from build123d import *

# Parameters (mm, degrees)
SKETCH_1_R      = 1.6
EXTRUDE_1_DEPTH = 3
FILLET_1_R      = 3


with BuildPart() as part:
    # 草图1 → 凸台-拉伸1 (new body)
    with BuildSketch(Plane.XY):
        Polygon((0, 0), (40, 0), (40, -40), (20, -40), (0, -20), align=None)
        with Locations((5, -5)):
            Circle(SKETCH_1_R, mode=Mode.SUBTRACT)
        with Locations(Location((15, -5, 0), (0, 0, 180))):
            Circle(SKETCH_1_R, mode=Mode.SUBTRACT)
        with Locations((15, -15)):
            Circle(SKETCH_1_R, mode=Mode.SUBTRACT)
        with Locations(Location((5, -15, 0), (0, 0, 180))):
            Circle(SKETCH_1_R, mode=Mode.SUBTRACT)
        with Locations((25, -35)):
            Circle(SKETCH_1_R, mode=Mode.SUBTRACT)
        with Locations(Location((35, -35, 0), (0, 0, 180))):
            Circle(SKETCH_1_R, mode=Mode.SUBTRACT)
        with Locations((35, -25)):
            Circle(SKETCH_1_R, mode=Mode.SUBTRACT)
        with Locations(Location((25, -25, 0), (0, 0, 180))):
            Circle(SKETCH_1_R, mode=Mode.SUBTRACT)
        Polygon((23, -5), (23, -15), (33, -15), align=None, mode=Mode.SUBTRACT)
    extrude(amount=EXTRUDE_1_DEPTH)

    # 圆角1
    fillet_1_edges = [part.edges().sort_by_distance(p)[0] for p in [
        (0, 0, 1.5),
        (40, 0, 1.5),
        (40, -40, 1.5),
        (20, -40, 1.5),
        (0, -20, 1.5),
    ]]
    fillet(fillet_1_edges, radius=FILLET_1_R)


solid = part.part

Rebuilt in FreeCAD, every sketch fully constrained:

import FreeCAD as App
import Part
import Sketcher

V = App.Vector
Q = App.Units.Quantity


def edges_at(feature, points):
    """Names of the edges that pass closest to the given points."""
    edges = feature.Shape.Edges
    near = lambda p: min(range(len(edges)), key=lambda i: edges[i].distToShape(Part.Vertex(*p))[0])
    return sorted({f"Edge{near(p) + 1}" for p in points})

doc = App.newDocument("Part")
params = doc.addObject("Spreadsheet::Sheet", "Params")
for row, (alias, value) in enumerate([
    ("sketch1_diameter", "3.2 mm"),
    ("sketch1_width", "40 mm"),
    ("sketch1_width2", "20 mm"),
    ("sketch1_width3", "10 mm"),
    ("pad1_length", "3 mm"),
    ("fillet_radius", "3 mm"),
], start=1):
    params.set(f"A{row}", alias)
    params.set(f"B{row}", "=" + value)
    params.setAlias(f"B{row}", alias)

body = doc.addObject("PartDesign::Body", "Body")

# Sketch on XY plane
sketch1 = body.newObject("Sketcher::SketchObject", "Sketch")
sketch1.AttachmentSupport = (doc.getObject("XY_Plane"), [""])
sketch1.MapMode = "FlatFace"
sketch1.addGeometry([
    Part.LineSegment(V(40, 0, 0), V(0, 0, 0)),  # 0
    Part.LineSegment(V(0, 0, 0), V(0, -20, 0)),  # 1
    Part.LineSegment(V(0, -20, 0), V(20, -40, 0)),  # 2
    Part.LineSegment(V(20, -40, 0), V(40, -40, 0)),  # 3
    Part.LineSegment(V(40, -40, 0), V(40, 0, 0)),  # 4
    Part.Circle(V(35, -35, 0), V(0, 0, 1), 1.6),  # 5
    Part.Circle(V(25, -35, 0), V(0, 0, 1), 1.6),  # 6
    Part.Circle(V(35, -25, 0), V(0, 0, 1), 1.6),  # 7
    Part.Circle(V(25, -25, 0), V(0, 0, 1), 1.6),  # 8
    Part.LineSegment(V(23, -5, 0), V(33, -15, 0)),  # 9
    Part.LineSegment(V(33, -15, 0), V(23, -15, 0)),  # 10
    Part.LineSegment(V(23, -15, 0), V(23, -5, 0)),  # 11
    Part.Circle(V(15, -15, 0), V(0, 0, 1), 1.6),  # 12
    Part.Circle(V(5, -15, 0), V(0, 0, 1), 1.6),  # 13
    Part.Circle(V(15, -5, 0), V(0, 0, 1), 1.6),  # 14
    Part.Circle(V(5, -5, 0), V(0, 0, 1), 1.6),  # 15
], False)
sketch1.addConstraint([
    Sketcher.Constraint("Coincident", 0, 2, 1, 1),
    Sketcher.Constraint("Coincident", 1, 2, 2, 1),
    Sketcher.Constraint("Coincident", 2, 2, 3, 1),
    Sketcher.Constraint("Coincident", 3, 2, 4, 1),
    Sketcher.Constraint("Coincident", 4, 2, 0, 1),
    Sketcher.Constraint("Coincident", 9, 2, 10, 1),
    Sketcher.Constraint("Coincident", 10, 2, 11, 1),
    Sketcher.Constraint("Coincident", 11, 2, 9, 1),
    Sketcher.Constraint("Horizontal", 0),
    Sketcher.Constraint("Vertical", 1),
    Sketcher.Constraint("Horizontal", 3),
    Sketcher.Constraint("Vertical", 4),
    Sketcher.Constraint("Horizontal", 10),
    Sketcher.Constraint("Vertical", 11),
    Sketcher.Constraint("Coincident", 0, 2, -1, 1),
    Sketcher.Constraint("Equal", 5, 6),
    Sketcher.Constraint("Equal", 6, 7),
    Sketcher.Constraint("Equal", 7, 8),
    Sketcher.Constraint("Equal", 8, 12),
    Sketcher.Constraint("Equal", 12, 13),
    Sketcher.Constraint("Equal", 13, 14),
    Sketcher.Constraint("Equal", 14, 15),
    Sketcher.Constraint("Parallel", 2, 9),
    Sketcher.Constraint("Horizontal", 5, 3, 6, 3),
    Sketcher.Constraint("Horizontal", 7, 3, 8, 3),
    Sketcher.Constraint("Horizontal", 12, 3, 13, 3),
    Sketcher.Constraint("Horizontal", 14, 3, 15, 3),
    Sketcher.Constraint("Horizontal", 13, 3, 9, 2),
    Sketcher.Constraint("Horizontal", 15, 3, 11, 2),
    Sketcher.Constraint("Vertical", 5, 3, 7, 3),
    Sketcher.Constraint("Vertical", 6, 3, 8, 3),
    Sketcher.Constraint("Vertical", 12, 3, 14, 3),
    Sketcher.Constraint("Vertical", 13, 3, 15, 3),
    Sketcher.Constraint("Equal", 3, 1),
    Sketcher.Constraint("Equal", 0, 4),
    Sketcher.Constraint("Diameter", 5, Q("3.2 mm")),
    Sketcher.Constraint("DistanceX", 0, 2, 0, 1, Q("40 mm")),
    Sketcher.Constraint("DistanceX", 3, 1, 3, 2, Q("20 mm")),
    Sketcher.Constraint("DistanceX", 10, 2, 10, 1, Q("10 mm")),
    Sketcher.Constraint("DistanceX", -1, 1, 5, 3, Q("35 mm")),
    Sketcher.Constraint("DistanceY", 5, 3, -1, 1, Q("35 mm")),
    Sketcher.Constraint("DistanceX", -1, 1, 6, 3, Q("25 mm")),
    Sketcher.Constraint("DistanceY", 7, 3, -1, 1, Q("25 mm")),
    Sketcher.Constraint("DistanceX", -1, 1, 12, 3, Q("15 mm")),
    Sketcher.Constraint("DistanceY", 12, 3, -1, 1, Q("15 mm")),
    Sketcher.Constraint("DistanceX", -1, 1, 13, 3, Q("5 mm")),
    Sketcher.Constraint("DistanceX", -1, 1, 9, 2, Q("33 mm")),
])
sketch1.setExpression("Constraints[35]", "Params.sketch1_diameter")
sketch1.setExpression("Constraints[36]", "Params.sketch1_width")
sketch1.setExpression("Constraints[37]", "Params.sketch1_width2")
sketch1.setExpression("Constraints[38]", "Params.sketch1_width3")
pad1 = body.newObject("PartDesign::Pad", "Pad")
pad1.Profile = sketch1
pad1.setExpression("Length", "Params.pad1_length")
doc.recompute()

fillet = body.newObject("PartDesign::Fillet", "Fillet")
fillet.Base = (pad1, edges_at(pad1, [
    (0, 0, 1.5),
    (40, 0, 1.5),
    (40, -40, 1.5),
    (20, -40, 1.5),
    (0, -20, 1.5),
]))
fillet.setExpression("Radius", "Params.fillet_radius")

doc.recompute()
